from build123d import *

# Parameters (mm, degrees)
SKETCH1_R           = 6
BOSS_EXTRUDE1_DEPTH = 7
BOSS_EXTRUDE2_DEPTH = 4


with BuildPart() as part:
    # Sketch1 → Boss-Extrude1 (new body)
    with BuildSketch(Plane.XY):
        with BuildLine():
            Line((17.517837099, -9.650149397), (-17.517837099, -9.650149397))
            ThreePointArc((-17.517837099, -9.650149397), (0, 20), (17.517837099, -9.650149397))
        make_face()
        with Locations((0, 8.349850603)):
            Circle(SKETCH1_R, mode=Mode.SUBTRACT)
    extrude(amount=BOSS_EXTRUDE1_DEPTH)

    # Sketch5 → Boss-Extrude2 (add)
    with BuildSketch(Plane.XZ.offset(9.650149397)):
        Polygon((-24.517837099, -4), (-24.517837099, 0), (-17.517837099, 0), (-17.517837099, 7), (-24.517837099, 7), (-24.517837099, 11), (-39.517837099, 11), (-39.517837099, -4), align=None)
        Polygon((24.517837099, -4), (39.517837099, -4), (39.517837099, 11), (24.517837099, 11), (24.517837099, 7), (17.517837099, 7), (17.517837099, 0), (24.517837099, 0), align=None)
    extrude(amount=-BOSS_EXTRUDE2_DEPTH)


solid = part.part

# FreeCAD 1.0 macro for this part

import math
import FreeCAD as App
import Part
import Sketcher

V = App.Vector

doc = App.newDocument("Part")
body = doc.addObject("PartDesign::Body", "Body")

sketch1 = doc.addObject("Sketcher::SketchObject", "Sketch")
body.addObject(sketch1)
sketch1.AttachmentSupport = (doc.XY_Plane, [""])
sketch1.MapMode = "FlatFace"
sketch1.addGeometry([
    Part.LineSegment(V(-17.517837, -9.650149, 0), V(17.517837, -9.650149, 0)),
    Part.ArcOfCircle(Part.Circle(V(0, 0, 0), V(0, 0, 1), 20), math.radians(-28.849297), math.radians(208.849297)),
    Part.Circle(V(0, 8.349851, 0), V(0, 0, 1), 6),
], False)
sketch1.addConstraint([
    Sketcher.Constraint("Coincident", 0, 1, 1, 2),
    Sketcher.Constraint("Coincident", 1, 1, 0, 2),
    Sketcher.Constraint("Horizontal", 0),
    Sketcher.Constraint("Coincident", 1, 3, -1, 1),
    Sketcher.Constraint("PointOnObject", 2, 3, -2),
    Sketcher.Constraint("Diameter", 2, 12.0),
    Sketcher.Constraint("Radius", 1, 20.0),
    Sketcher.Constraint("DistanceY", 0, 1, 2, 3, 18.0),
    Sketcher.Constraint("DistanceX", 0, 1, 0, 2, 35.035674),
])
pad1 = doc.addObject("PartDesign::Pad", "Pad")
body.addObject(pad1)
pad1.Profile = sketch1
pad1.Length = 7

sketch2 = doc.addObject("Sketcher::SketchObject", "Sketch001")
body.addObject(sketch2)
sketch2.AttachmentSupport = (doc.XZ_Plane, [""])
sketch2.MapMode = "FlatFace"
sketch2.AttachmentOffset = App.Placement(V(0, 0, 9.650149), App.Rotation())
sketch2.addGeometry([
    Part.LineSegment(V(-24.517837, -4, 0), V(-24.517837, 0, 0)),
    Part.LineSegment(V(-24.517837, 0, 0), V(-17.517837, 0, 0)),
    Part.LineSegment(V(-17.517837, 0, 0), V(-17.517837, 7, 0)),
    Part.LineSegment(V(-17.517837, 7, 0), V(-24.517837, 7, 0)),
    Part.LineSegment(V(-24.517837, 7, 0), V(-24.517837, 11, 0)),
    Part.LineSegment(V(-24.517837, 11, 0), V(-39.517837, 11, 0)),
    Part.LineSegment(V(-39.517837, 11, 0), V(-39.517837, -4, 0)),
    Part.LineSegment(V(-39.517837, -4, 0), V(-24.517837, -4, 0)),
    Part.LineSegment(V(24.517837, -4, 0), V(39.517837, -4, 0)),
    Part.LineSegment(V(39.517837, -4, 0), V(39.517837, 11, 0)),
    Part.LineSegment(V(39.517837, 11, 0), V(24.517837, 11, 0)),
    Part.LineSegment(V(24.517837, 11, 0), V(24.517837, 7, 0)),
    Part.LineSegment(V(24.517837, 7, 0), V(17.517837, 7, 0)),
    Part.LineSegment(V(17.517837, 7, 0), V(17.517837, 0, 0)),
    Part.LineSegment(V(17.517837, 0, 0), V(24.517837, 0, 0)),
    Part.LineSegment(V(24.517837, 0, 0), V(24.517837, -4, 0)),
], False)
sketch2.addConstraint([
    Sketcher.Constraint("Coincident", 0, 2, 1, 1),
    Sketcher.Constraint("Coincident", 1, 2, 2, 1),
    Sketcher.Constraint("Coincident", 2, 2, 3, 1),
    Sketcher.Constraint("Coincident", 3, 2, 4, 1),
    Sketcher.Constraint("Coincident", 4, 2, 5, 1),
    Sketcher.Constraint("Coincident", 5, 2, 6, 1),
    Sketcher.Constraint("Coincident", 6, 2, 7, 1),
    Sketcher.Constraint("Coincident", 7, 2, 0, 1),
    Sketcher.Constraint("Coincident", 8, 2, 9, 1),
    Sketcher.Constraint("Coincident", 9, 2, 10, 1),
    Sketcher.Constraint("Coincident", 10, 2, 11, 1),
    Sketcher.Constraint("Coincident", 11, 2, 12, 1),
    Sketcher.Constraint("Coincident", 12, 2, 13, 1),
    Sketcher.Constraint("Coincident", 13, 2, 14, 1),
    Sketcher.Constraint("Coincident", 14, 2, 15, 1),
    Sketcher.Constraint("Coincident", 15, 2, 8, 1),
    Sketcher.Constraint("Vertical", 0),
    Sketcher.Constraint("Horizontal", 1),
    Sketcher.Constraint("Vertical", 2),
    Sketcher.Constraint("Horizontal", 3),
    Sketcher.Constraint("Vertical", 4),
    Sketcher.Constraint("Horizontal", 5),
    Sketcher.Constraint("Vertical", 6),
    Sketcher.Constraint("Horizontal", 7),
    Sketcher.Constraint("Horizontal", 8),
    Sketcher.Constraint("Vertical", 9),
    Sketcher.Constraint("Horizontal", 10),
    Sketcher.Constraint("Vertical", 11),
    Sketcher.Constraint("Horizontal", 12),
    Sketcher.Constraint("Vertical", 13),
    Sketcher.Constraint("Horizontal", 14),
    Sketcher.Constraint("Vertical", 15),
    Sketcher.Constraint("Symmetric", 1, 2, 13, 2, -1, 1),
    Sketcher.Constraint("Symmetric", 6, 2, 8, 2, -2),
    Sketcher.Constraint("Symmetric", 4, 2, 10, 2, -2),
    Sketcher.Constraint("Symmetric", 0, 2, 14, 2, -2),
    Sketcher.Constraint("Horizontal", 3, 2, 11, 2),
    Sketcher.Constraint("Vertical", 0, 2, 3, 2),
    Sketcher.Constraint("Equal", 14, 2),
    Sketcher.Constraint("Equal", 0, 4),
    Sketcher.Constraint("Equal", 10, 6),
    Sketcher.Constraint("DistanceX", 1, 1, 1, 2, 7.0),
    Sketcher.Constraint("DistanceX", 5, 2, 5, 1, 15.0),
    Sketcher.Constraint("DistanceX", 0, 2, -1, 1, 24.517837),
])
pad2 = doc.addObject("PartDesign::Pad", "Pad001")
body.addObject(pad2)
pad2.Profile = sketch2
pad2.Length = 4
pad2.Reversed = True

doc.recompute()
